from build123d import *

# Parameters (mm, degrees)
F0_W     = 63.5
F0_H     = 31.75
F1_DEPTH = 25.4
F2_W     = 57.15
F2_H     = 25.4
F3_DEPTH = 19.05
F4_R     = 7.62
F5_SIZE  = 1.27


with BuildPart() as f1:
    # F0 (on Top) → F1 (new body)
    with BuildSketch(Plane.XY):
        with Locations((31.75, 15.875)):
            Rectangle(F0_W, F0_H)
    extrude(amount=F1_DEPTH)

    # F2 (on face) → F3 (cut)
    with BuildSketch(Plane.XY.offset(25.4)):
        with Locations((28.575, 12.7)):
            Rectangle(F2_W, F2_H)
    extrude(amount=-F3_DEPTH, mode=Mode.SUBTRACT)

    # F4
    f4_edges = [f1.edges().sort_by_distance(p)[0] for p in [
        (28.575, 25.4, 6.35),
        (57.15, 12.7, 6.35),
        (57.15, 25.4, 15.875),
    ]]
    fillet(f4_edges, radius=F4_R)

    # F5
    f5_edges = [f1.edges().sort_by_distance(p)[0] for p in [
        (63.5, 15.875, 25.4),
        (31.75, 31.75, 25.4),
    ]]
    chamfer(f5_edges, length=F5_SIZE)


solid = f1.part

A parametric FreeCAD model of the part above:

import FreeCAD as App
import Part
import Sketcher
from FreeCAD import Vector
Q = App.Units.Quantity


def edges_at(feature, points):
    """Names of the edges that pass closest to the given points."""
    edges = feature.Shape.Edges
    near = lambda p: min(range(len(edges)), key=lambda i: edges[i].distToShape(Part.Vertex(*p))[0])
    return sorted({f"Edge{near(p) + 1}" for p in points})

doc = App.newDocument("Part")
params = doc.addObject("Spreadsheet::Sheet", "Params")
for row, (alias, value) in enumerate([
    ("sketch1_width", "2.5 in"),
    ("sketch1_height", "1.25 in"),
    ("pad1_length", "1 in"),
    ("sketch2_height", "1 in"),
    ("sketch2_width", "2.25 in"),
    ("pocket1_length", "0.75 in"),
    ("fillet_radius", "0.3 in"),
    ("chamfer_size", "0.05 in"),
], start=1):
    params.set(f"A{row}", alias)
    params.set(f"B{row}", "=" + value)
    params.setAlias(f"B{row}", alias)

body = doc.addObject("PartDesign::Body", "Body")

# Sketch on XY plane
sketch1 = body.newObject("Sketcher::SketchObject", "Sketch")
sketch1.AttachmentSupport = (doc.getObject("XY_Plane"), [""])
sketch1.MapMode = "FlatFace"
sketch1.addGeometry([
    Part.LineSegment(Vector(0, 31.75, 0), Vector(0, 0, 0)),
    Part.LineSegment(Vector(0, 0, 0), Vector(63.5, 0, 0)),
    Part.LineSegment(Vector(63.5, 0, 0), Vector(63.5, 31.75, 0)),
    Part.LineSegment(Vector(63.5, 31.75, 0), Vector(0, 31.75, 0)),
], False)
sketch1.addConstraint([
    Sketcher.Constraint("Coincident", 0, 2, 1, 1),
    Sketcher.Constraint("Coincident", 1, 2, 2, 1),
    Sketcher.Constraint("Coincident", 2, 2, 3, 1),
    Sketcher.Constraint("Coincident", 3, 2, 0, 1),
    Sketcher.Constraint("Vertical", 0),
    Sketcher.Constraint("Horizontal", 1),
    Sketcher.Constraint("Vertical", 2),
    Sketcher.Constraint("Horizontal", 3),
    Sketcher.Constraint("Coincident", 0, 2, -1, 1),
    Sketcher.Constraint("DistanceX", 1, 1, 1, 2, Q("2.5 in")),
    Sketcher.Constraint("DistanceY", 0, 2, 0, 1, Q("1.25 in")),
])
sketch1.setExpression("Constraints[9]", "Params.sketch1_width")
sketch1.setExpression("Constraints[10]", "Params.sketch1_height")
pad1 = body.newObject("PartDesign::Pad", "Pad")
pad1.Profile = sketch1
pad1.setExpression("Length", "Params.pad1_length")

# Sketch on XY plane
sketch2 = body.newObject("Sketcher::SketchObject", "Sketch001")
sketch2.AttachmentSupport = (doc.getObject("XY_Plane"), [""])
sketch2.MapMode = "FlatFace"
sketch2.AttachmentOffset = App.Placement(Vector(0, 0, 1 * 25.4), App.Rotation())
sketch2.addGeometry([
    Part.LineSegment(Vector(0, 25.4, 0), Vector(0, 0, 0)),
    Part.LineSegment(Vector(0, 0, 0), Vector(57.15, 0, 0)),
    Part.LineSegment(Vector(57.15, 0, 0), Vector(57.15, 25.4, 0)),
    Part.LineSegment(Vector(57.15, 25.4, 0), Vector(0, 25.4, 0)),
], False)
sketch2.addConstraint([
    Sketcher.Constraint("Coincident", 0, 2, 1, 1),
    Sketcher.Constraint("Coincident", 1, 2, 2, 1),
    Sketcher.Constraint("Coincident", 2, 2, 3, 1),
    Sketcher.Constraint("Coincident", 3, 2, 0, 1),
    Sketcher.Constraint("Vertical", 0),
    Sketcher.Constraint("Horizontal", 1),
    Sketcher.Constraint("Vertical", 2),
    Sketcher.Constraint("Horizontal", 3),
    Sketcher.Constraint("Coincident", 0, 2, -1, 1),
    Sketcher.Constraint("DistanceY", 0, 2, 0, 1, Q("1 in")),
    Sketcher.Constraint("DistanceX", 1, 1, 1, 2, Q("2.25 in")),
])
sketch2.setExpression("Constraints[9]", "Params.sketch2_height")
sketch2.setExpression("Constraints[10]", "Params.sketch2_width")
pocket1 = body.newObject("PartDesign::Pocket", "Pocket")
pocket1.Profile = sketch2
pocket1.setExpression("Length", "Params.pocket1_length")
doc.recompute()

fillet = body.newObject("PartDesign::Fillet", "Fillet")
fillet.Base = (pocket1, edges_at(pocket1, [(28.575, 25.4, 6.35), (57.15, 12.7, 6.35), (57.15, 25.4, 15.875)]))
fillet.setExpression("Radius", "Params.fillet_radius")
doc.recompute()

chamfer = body.newObject("PartDesign::Chamfer", "Chamfer")
chamfer.Base = (fillet, edges_at(fillet, [(63.5, 15.875, 25.4), (31.75, 31.75, 25.4)]))
chamfer.setExpression("Size", "Params.chamfer_size")

doc.recompute()
